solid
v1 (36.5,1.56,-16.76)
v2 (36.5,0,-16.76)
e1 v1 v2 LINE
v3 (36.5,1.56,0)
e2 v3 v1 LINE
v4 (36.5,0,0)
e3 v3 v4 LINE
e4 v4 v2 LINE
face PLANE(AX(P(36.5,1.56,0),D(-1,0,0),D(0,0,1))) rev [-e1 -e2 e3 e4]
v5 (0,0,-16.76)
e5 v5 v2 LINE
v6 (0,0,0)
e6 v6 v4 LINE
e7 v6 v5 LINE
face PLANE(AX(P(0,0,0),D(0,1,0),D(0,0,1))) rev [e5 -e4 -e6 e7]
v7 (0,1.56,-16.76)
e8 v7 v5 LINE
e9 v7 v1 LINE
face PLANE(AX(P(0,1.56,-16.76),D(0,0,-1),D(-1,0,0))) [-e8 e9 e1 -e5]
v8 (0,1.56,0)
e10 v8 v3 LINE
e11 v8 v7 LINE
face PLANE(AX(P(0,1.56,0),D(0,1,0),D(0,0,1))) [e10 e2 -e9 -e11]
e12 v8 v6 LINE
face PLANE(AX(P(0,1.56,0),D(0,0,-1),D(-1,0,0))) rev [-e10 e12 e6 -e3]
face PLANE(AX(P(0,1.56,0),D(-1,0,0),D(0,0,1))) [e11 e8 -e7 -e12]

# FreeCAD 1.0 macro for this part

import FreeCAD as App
import Part
import Sketcher

V = App.Vector
Q = App.Units.Quantity


def add_polygon(sketch, points):
    """Adds a closed chain of lines whose ends are joined by coincident constraints."""
    first, n = sketch.GeometryCount, len(points)
    for a, b in zip(points, points[1:] + points[:1]):
        sketch.addGeometry(Part.LineSegment(App.Vector(*a, 0), App.Vector(*b, 0)), False)
    for i in range(n):
        sketch.addConstraint(Sketcher.Constraint("Coincident", first + i, 2, first + (i + 1) % n, 1))

doc = App.newDocument("Part")
params = doc.addObject("Spreadsheet::Sheet", "Params")
for row, (alias, value) in enumerate([
    ("sketch1_width", "36.5 mm"),
    ("sketch1_height", "16.76 mm"),
    ("pad1_length", "1.56 mm"),
], start=1):
    params.set(f"A{row}", alias)
    params.set(f"B{row}", "=" + value)
    params.setAlias(f"B{row}", alias)

body = doc.addObject("PartDesign::Body", "Body")

sketch1 = body.newObject("Sketcher::SketchObject", "Sketch")
sketch1.AttachmentSupport = (doc.getObject("XZ_Plane"), [""])
sketch1.MapMode = "FlatFace"
add_polygon(sketch1, [(0, -17), (0, 0), (36, 0), (36, -17)])
sketch1.addConstraint([
    Sketcher.Constraint("Vertical", 0),
    Sketcher.Constraint("Horizontal", 1),
    Sketcher.Constraint("Vertical", 2),
    Sketcher.Constraint("Horizontal", 3),
    Sketcher.Constraint("Coincident", 0, 2, -1, 1),
    Sketcher.Constraint("DistanceX", 1, 1, 1, 2, Q("36.5 mm")),
    Sketcher.Constraint("DistanceY", 0, 1, 0, 2, Q("16.76 mm")),
])
sketch1.setExpression("Constraints[9]", "Params.sketch1_width")
sketch1.setExpression("Constraints[10]", "Params.sketch1_height")
pad1 = body.newObject("PartDesign::Pad", "Pad")
pad1.Profile = sketch1
pad1.setExpression("Length", "Params.pad1_length")
pad1.Reversed = True

doc.recompute()
